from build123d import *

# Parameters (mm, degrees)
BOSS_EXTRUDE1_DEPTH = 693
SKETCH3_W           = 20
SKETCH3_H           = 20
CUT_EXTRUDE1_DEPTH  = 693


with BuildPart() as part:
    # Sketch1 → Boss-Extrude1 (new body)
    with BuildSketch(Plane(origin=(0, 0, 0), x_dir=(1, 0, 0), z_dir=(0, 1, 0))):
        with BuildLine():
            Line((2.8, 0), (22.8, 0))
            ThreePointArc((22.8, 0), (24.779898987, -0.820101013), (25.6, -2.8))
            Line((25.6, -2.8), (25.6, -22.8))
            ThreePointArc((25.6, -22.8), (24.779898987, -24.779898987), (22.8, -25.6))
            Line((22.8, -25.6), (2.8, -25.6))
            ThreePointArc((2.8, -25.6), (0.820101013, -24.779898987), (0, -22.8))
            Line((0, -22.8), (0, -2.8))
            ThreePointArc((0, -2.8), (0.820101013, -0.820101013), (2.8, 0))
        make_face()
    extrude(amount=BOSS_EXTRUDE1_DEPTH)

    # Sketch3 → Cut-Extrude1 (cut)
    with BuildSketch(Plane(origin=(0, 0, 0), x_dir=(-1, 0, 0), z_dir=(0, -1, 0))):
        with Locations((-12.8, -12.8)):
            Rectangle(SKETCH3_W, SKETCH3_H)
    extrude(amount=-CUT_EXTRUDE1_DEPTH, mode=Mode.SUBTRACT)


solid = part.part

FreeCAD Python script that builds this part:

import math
import FreeCAD as App
import Part
import Sketcher

V = App.Vector
Q = App.Units.Quantity


def add_polygon(sketch, points):
    """Adds a closed chain of lines whose ends are joined by coincident constraints."""
    first, n = sketch.GeometryCount, len(points)
    for a, b in zip(points, points[1:] + points[:1]):
        sketch.addGeometry(Part.LineSegment(App.Vector(*a, 0), App.Vector(*b, 0)), False)
    for i in range(n):
        sketch.addConstraint(Sketcher.Constraint("Coincident", first + i, 2, first + (i + 1) % n, 1))

doc = App.newDocument("Part")
body = doc.addObject("PartDesign::Body", "Body")

sketch1 = body.newObject("Sketcher::SketchObject", "Sketch")
sketch1.AttachmentSupport = (doc.getObject("XZ_Plane"), [""])
sketch1.MapMode = "FlatFace"
sketch1.addGeometry([
    Part.LineSegment(V(22.8, 0, 0), V(2.8, 0, 0)),
    Part.ArcOfCircle(Part.Circle(V(2.8, 2.8, 0), V(0, 0, 1), 2.8), math.radians(-180), math.radians(-90)),
    Part.LineSegment(V(0, 2.8, 0), V(0, 22.8, 0)),
    Part.ArcOfCircle(Part.Circle(V(2.8, 22.8, 0), V(0, 0, 1), 2.8), math.radians(90), math.radians(180)),
    Part.LineSegment(V(2.8, 25.6, 0), V(22.8, 25.6, 0)),
    Part.ArcOfCircle(Part.Circle(V(22.8, 22.8, 0), V(0, 0, 1), 2.8), math.radians(0), math.radians(90)),
    Part.LineSegment(V(25.6, 22.8, 0), V(25.6, 2.8, 0)),
    Part.ArcOfCircle(Part.Circle(V(22.8, 2.8, 0), V(0, 0, 1), 2.8), math.radians(-90), math.radians(0)),
], False)
sketch1.addConstraint([
    Sketcher.Constraint("Tangent", 0, 2, 1, 2),
    Sketcher.Constraint("Tangent", 1, 1, 2, 1),
    Sketcher.Constraint("Tangent", 2, 2, 3, 2),
    Sketcher.Constraint("Tangent", 3, 1, 4, 1),
    Sketcher.Constraint("Tangent", 4, 2, 5, 2),
    Sketcher.Constraint("Tangent", 5, 1, 6, 1),
    Sketcher.Constraint("Tangent", 6, 2, 7, 2),
    Sketcher.Constraint("Tangent", 7, 1, 0, 1),
    Sketcher.Constraint("Horizontal", 0),
    Sketcher.Constraint("Vertical", 2),
    Sketcher.Constraint("Horizontal", 4),
    Sketcher.Constraint("Vertical", 6),
    Sketcher.Constraint("Equal", 1, 3),
    Sketcher.Constraint("Equal", 3, 5),
    Sketcher.Constraint("Equal", 5, 7),
    Sketcher.Constraint("PointOnObject", 0, 2, -1),
    Sketcher.Constraint("PointOnObject", 1, 1, -2),
    Sketcher.Constraint("Equal", 4, 2),
    Sketcher.Constraint("Radius", 1, Q("2.8 mm")),
    Sketcher.Constraint("DistanceX", 0, 2, 0, 1, Q("20 mm")),
])
pad1 = body.newObject("PartDesign::Pad", "Pad")
pad1.Profile = sketch1
pad1.Length = 693
pad1.Reversed = True

sketch2 = body.newObject("Sketcher::SketchObject", "Sketch001")
sketch2.AttachmentSupport = (doc.getObject("XZ_Plane"), [""])
sketch2.MapMode = "FlatFace"
add_polygon(sketch2, [(23, 3), (23, 23), (3, 23), (3, 3)])
sketch2.addConstraint([
    Sketcher.Constraint("Vertical", 0),
    Sketcher.Constraint("Horizontal", 1),
    Sketcher.Constraint("Vertical", 2),
    Sketcher.Constraint("Horizontal", 3),
    Sketcher.Constraint("Equal", 3, 0),
    Sketcher.Constraint("DistanceX", 1, 2, 1, 1, Q("20 mm")),
    Sketcher.Constraint("DistanceX", -1, 1, 0, 2, Q("22.8 mm")),
    Sketcher.Constraint("DistanceY", -1, 1, 0, 2, Q("22.8 mm")),
])
pocket1 = body.newObject("PartDesign::Pocket", "Pocket")
pocket1.Profile = sketch2
pocket1.Length = 693

doc.recompute()
